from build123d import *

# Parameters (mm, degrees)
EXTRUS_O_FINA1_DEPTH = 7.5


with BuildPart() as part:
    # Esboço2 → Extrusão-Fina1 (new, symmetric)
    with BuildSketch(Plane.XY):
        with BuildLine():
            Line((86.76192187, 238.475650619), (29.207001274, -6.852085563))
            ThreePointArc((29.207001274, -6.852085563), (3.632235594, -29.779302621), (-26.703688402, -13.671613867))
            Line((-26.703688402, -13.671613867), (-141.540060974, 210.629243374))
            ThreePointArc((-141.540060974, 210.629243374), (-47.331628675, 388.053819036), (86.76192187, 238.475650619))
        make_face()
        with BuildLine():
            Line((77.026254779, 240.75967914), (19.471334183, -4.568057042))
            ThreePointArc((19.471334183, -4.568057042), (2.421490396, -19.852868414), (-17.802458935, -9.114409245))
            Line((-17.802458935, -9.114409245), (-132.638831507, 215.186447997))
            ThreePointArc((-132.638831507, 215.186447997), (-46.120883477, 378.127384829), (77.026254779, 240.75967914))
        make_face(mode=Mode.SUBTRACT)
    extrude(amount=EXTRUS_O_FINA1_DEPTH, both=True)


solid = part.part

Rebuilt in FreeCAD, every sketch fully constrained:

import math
import FreeCAD as App
import Part
import Sketcher
Q = App.Units.Quantity

doc = App.newDocument("Part")
body = doc.addObject("PartDesign::Body", "Body")

# Sketch on XY plane
sketch1 = body.newObject("Sketcher::SketchObject", "Sketch")
sketch1.AttachmentSupport = (doc.getObject("XY_Plane"), [""])
sketch1.MapMode = "FlatFace"
sketch1.addGeometry([
    Part.LineSegment(App.Vector(29, -7, 0), App.Vector(87, 238, 0)),  # 0
    Part.ArcOfCircle(Part.Circle(App.Vector(-32, 266, 0), App.Vector(0, 0, 1), 122), math.radians(-13), math.radians(207)),  # 1
    Part.LineSegment(App.Vector(-142, 211, 0), App.Vector(-27, -14, 0)),  # 2
    Part.ArcOfCircle(Part.Circle(App.Vector(0, 0, 0), App.Vector(0, 0, 1), 30), math.radians(-153), math.radians(-13)),  # 3
    Part.LineSegment(App.Vector(77, 241, 0), App.Vector(19, -5, 0)),  # 4
    Part.ArcOfCircle(Part.Circle(App.Vector(0, 0, 0), App.Vector(0, 0, 1), 20), math.radians(-153), math.radians(-13)),  # 5
    Part.LineSegment(App.Vector(-18, -9, 0), App.Vector(-133, 215, 0)),  # 6
    Part.ArcOfCircle(Part.Circle(App.Vector(-32, 266, 0), App.Vector(0, 0, 1), 112), math.radians(-13), math.radians(207)),  # 7
], False)
sketch1.addConstraint([
    Sketcher.Constraint("Tangent", 0, 2, 1, 1),
    Sketcher.Constraint("Tangent", 1, 2, 2, 1),
    Sketcher.Constraint("Tangent", 2, 2, 3, 1),
    Sketcher.Constraint("Tangent", 3, 2, 0, 1),
    Sketcher.Constraint("Tangent", 4, 2, 5, 2),
    Sketcher.Constraint("Tangent", 5, 1, 6, 1),
    Sketcher.Constraint("Tangent", 6, 2, 7, 2),
    Sketcher.Constraint("Tangent", 7, 1, 4, 1),
    Sketcher.Constraint("Coincident", 3, 3, -1, 1),
    Sketcher.Constraint("Coincident", 5, 3, -1, 1),
    Sketcher.Constraint("Coincident", 7, 3, 1, 3),
    Sketcher.Constraint("Parallel", 0, 4),
    Sketcher.Constraint("Radius", 3, Q("30 mm")),
    Sketcher.Constraint("Radius", 5, Q("20 mm")),
    Sketcher.Constraint("Radius", 1, Q("122.5 mm")),
    Sketcher.Constraint("DistanceX", 1, 3, -1, 1, Q("32.5 mm")),
    Sketcher.Constraint("DistanceY", -1, 1, 1, 3, Q("266.455 mm")),
])
pad1 = body.newObject("PartDesign::Pad", "Pad")
pad1.Profile = sketch1
pad1.Length = 15
pad1.Midplane = True

doc.recompute()
